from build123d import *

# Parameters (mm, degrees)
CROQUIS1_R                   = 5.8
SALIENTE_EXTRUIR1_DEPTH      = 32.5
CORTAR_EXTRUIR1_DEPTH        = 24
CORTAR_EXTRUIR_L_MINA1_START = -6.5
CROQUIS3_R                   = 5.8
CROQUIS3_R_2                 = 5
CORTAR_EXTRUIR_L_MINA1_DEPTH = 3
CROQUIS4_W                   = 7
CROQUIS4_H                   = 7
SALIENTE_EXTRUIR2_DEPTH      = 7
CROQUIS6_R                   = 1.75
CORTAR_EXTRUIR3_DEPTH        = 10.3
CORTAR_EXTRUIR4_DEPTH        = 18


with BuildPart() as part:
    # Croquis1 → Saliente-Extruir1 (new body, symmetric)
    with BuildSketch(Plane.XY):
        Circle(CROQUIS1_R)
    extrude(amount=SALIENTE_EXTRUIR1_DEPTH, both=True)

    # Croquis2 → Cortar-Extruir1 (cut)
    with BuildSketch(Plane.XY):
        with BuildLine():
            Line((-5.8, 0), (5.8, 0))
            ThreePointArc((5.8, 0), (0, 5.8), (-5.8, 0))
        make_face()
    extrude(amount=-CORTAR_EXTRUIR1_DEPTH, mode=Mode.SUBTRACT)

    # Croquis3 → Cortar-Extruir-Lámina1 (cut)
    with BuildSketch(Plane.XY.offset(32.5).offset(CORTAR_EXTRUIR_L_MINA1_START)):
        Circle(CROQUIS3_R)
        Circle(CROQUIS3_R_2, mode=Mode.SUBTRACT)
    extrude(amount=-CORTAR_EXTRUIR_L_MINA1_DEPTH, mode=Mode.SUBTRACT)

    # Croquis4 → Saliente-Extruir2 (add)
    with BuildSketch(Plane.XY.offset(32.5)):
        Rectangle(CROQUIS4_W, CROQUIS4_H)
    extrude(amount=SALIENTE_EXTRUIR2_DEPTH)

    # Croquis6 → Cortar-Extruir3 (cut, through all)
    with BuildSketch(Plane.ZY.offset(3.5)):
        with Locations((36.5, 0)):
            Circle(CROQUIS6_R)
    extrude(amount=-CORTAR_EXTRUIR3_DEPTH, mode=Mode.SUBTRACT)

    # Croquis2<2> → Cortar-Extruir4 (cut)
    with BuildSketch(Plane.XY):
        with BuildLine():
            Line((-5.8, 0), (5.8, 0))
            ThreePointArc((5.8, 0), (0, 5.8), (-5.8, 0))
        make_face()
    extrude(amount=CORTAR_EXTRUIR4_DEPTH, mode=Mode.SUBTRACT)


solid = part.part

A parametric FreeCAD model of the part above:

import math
import FreeCAD as App
import Part
import Sketcher
Q = App.Units.Quantity


def add_polygon(sketch, points):
    """Adds a closed chain of lines whose ends are joined by coincident constraints."""
    first, n = sketch.GeometryCount, len(points)
    for a, b in zip(points, points[1:] + points[:1]):
        sketch.addGeometry(Part.LineSegment(App.Vector(*a, 0), App.Vector(*b, 0)), False)
    for i in range(n):
        sketch.addConstraint(Sketcher.Constraint("Coincident", first + i, 2, first + (i + 1) % n, 1))

doc = App.newDocument("Part")
params = doc.addObject("Spreadsheet::Sheet", "Params")
for row, (alias, value) in enumerate([
    ("sketch1_diameter", "11.6 mm"),
    ("pad1_length", "65 mm"),
    ("sketch2_radius", "5.8 mm"),
    ("pocket1_length", "24 mm"),
    ("sketch3_diameter", "10 mm"),
    ("sketch3_diameter2", "11.6 mm"),
    ("pocket2_length", "3 mm"),
    ("sketch4_width", "7 mm"),
    ("pad2_length", "7 mm"),
    ("sketch5_diameter", "3.5 mm"),
    ("sketch6_radius", "5.8 mm"),
    ("pocket4_length", "18 mm"),
], start=1):
    params.set(f"A{row}", alias)
    params.set(f"B{row}", "=" + value)
    params.setAlias(f"B{row}", alias)

body = doc.addObject("PartDesign::Body", "Body")

# Sketch on XY plane
sketch1 = body.newObject("Sketcher::SketchObject", "Sketch")
sketch1.AttachmentSupport = (doc.getObject("XY_Plane"), [""])
sketch1.MapMode = "FlatFace"
sketch1.addGeometry(Part.Circle(App.Vector(0, 0, 0), App.Vector(0, 0, 1), 6), False)
sketch1.addConstraint(Sketcher.Constraint("Coincident", 0, 3, -1, 1))
sketch1.addConstraint(Sketcher.Constraint("Diameter", 0, Q("11.6 mm")))
sketch1.setExpression("Constraints[1]", "Params.sketch1_diameter")
pad1 = body.newObject("PartDesign::Pad", "Pad")
pad1.Profile = sketch1
pad1.setExpression("Length", "Params.pad1_length")
pad1.Midplane = True

# Sketch on XY plane
sketch2 = body.newObject("Sketcher::SketchObject", "Sketch001")
sketch2.AttachmentSupport = (doc.getObject("XY_Plane"), [""])
sketch2.MapMode = "FlatFace"
sketch2.addGeometry(Part.LineSegment(App.Vector(-6, 0, 0), App.Vector(6, 0, 0)), False)
sketch2.addGeometry(Part.ArcOfCircle(Part.Circle(App.Vector(0, 0, 0), App.Vector(0, 0, 1), 6), math.radians(0), math.radians(180)), False)
sketch2.addConstraint(Sketcher.Constraint("Coincident", 0, 1, 1, 2))
sketch2.addConstraint(Sketcher.Constraint("Coincident", 1, 1, 0, 2))
sketch2.addConstraint(Sketcher.Constraint("Horizontal", 0))
sketch2.addConstraint(Sketcher.Constraint("Coincident", 1, 3, -1, 1))
sketch2.addConstraint(Sketcher.Constraint("PointOnObject", 0, 1, -1))
sketch2.addConstraint(Sketcher.Constraint("Radius", 1, Q("5.8 mm")))
sketch2.setExpression("Constraints[5]", "Params.sketch2_radius")
pocket1 = body.newObject("PartDesign::Pocket", "Pocket")
pocket1.Profile = sketch2
pocket1.setExpression("Length", "Params.pocket1_length")

# Sketch on XY plane
sketch3 = body.newObject("Sketcher::SketchObject", "Sketch002")
sketch3.AttachmentSupport = (doc.getObject("XY_Plane"), [""])
sketch3.MapMode = "FlatFace"
sketch3.AttachmentOffset = App.Placement(App.Vector(0, 0, 26), App.Rotation())
sketch3.addGeometry(Part.Circle(App.Vector(0, 0, 0), App.Vector(0, 0, 1), 6), False)
sketch3.addGeometry(Part.Circle(App.Vector(0, 0, 0), App.Vector(0, 0, 1), 5), False)
sketch3.addConstraint(Sketcher.Constraint("Coincident", 0, 3, -1, 1))
sketch3.addConstraint(Sketcher.Constraint("Coincident", 1, 3, -1, 1))
sketch3.addConstraint(Sketcher.Constraint("Diameter", 1, Q("10 mm")))
sketch3.addConstraint(Sketcher.Constraint("Diameter", 0, Q("11.6 mm")))
sketch3.setExpression("Constraints[2]", "Params.sketch3_diameter")
sketch3.setExpression("Constraints[3]", "Params.sketch3_diameter2")
pocket2 = body.newObject("PartDesign::Pocket", "Pocket001")
pocket2.Profile = sketch3
pocket2.setExpression("Length", "Params.pocket2_length")

# Sketch on XY plane
sketch4 = body.newObject("Sketcher::SketchObject", "Sketch003")
sketch4.AttachmentSupport = (doc.getObject("XY_Plane"), [""])
sketch4.MapMode = "FlatFace"
sketch4.AttachmentOffset = App.Placement(App.Vector(0, 0, 32.5), App.Rotation())
add_polygon(sketch4, [(-4, 4), (-4, -4), (4, -4), (4, 4)])  # lines 0-3
sketch4.addConstraint(Sketcher.Constraint("Vertical", 0))
sketch4.addConstraint(Sketcher.Constraint("Horizontal", 1))
sketch4.addConstraint(Sketcher.Constraint("Vertical", 2))
sketch4.addConstraint(Sketcher.Constraint("Horizontal", 3))
sketch4.addConstraint(Sketcher.Constraint("Symmetric", 0, 2, 2, 2, -1, 1))
sketch4.addConstraint(Sketcher.Constraint("Equal", 3, 0))
sketch4.addConstraint(Sketcher.Constraint("DistanceX", 1, 1, 1, 2, Q("7 mm")))
sketch4.setExpression("Constraints[10]", "Params.sketch4_width")
pad2 = body.newObject("PartDesign::Pad", "Pad001")
pad2.Profile = sketch4
pad2.setExpression("Length", "Params.pad2_length")

# Sketch on YZ plane
sketch5 = body.newObject("Sketcher::SketchObject", "Sketch004")
sketch5.AttachmentSupport = (doc.getObject("YZ_Plane"), [""])
sketch5.MapMode = "FlatFace"
sketch5.AttachmentOffset = App.Placement(App.Vector(0, 0, -3.5), App.Rotation())
sketch5.addGeometry(Part.Circle(App.Vector(0, 36.5, 0), App.Vector(0, 0, 1), 1.8), False)
sketch5.addConstraint(Sketcher.Constraint("PointOnObject", 0, 3, -2))
sketch5.addConstraint(Sketcher.Constraint("Diameter", 0, Q("3.5 mm")))
sketch5.addConstraint(Sketcher.Constraint("DistanceY", -1, 1, 0, 3, Q("36.5 mm")))
sketch5.setExpression("Constraints[1]", "Params.sketch5_diameter")
pocket3 = body.newObject("PartDesign::Pocket", "Pocket002")
pocket3.Profile = sketch5
pocket3.Type = "ThroughAll"
pocket3.Reversed = True

# Sketch on XY plane
sketch6 = body.newObject("Sketcher::SketchObject", "Sketch005")
sketch6.AttachmentSupport = (doc.getObject("XY_Plane"), [""])
sketch6.MapMode = "FlatFace"
sketch6.addGeometry(Part.LineSegment(App.Vector(-6, 0, 0), App.Vector(6, 0, 0)), False)
sketch6.addGeometry(Part.ArcOfCircle(Part.Circle(App.Vector(0, 0, 0), App.Vector(0, 0, 1), 6), math.radians(0), math.radians(180)), False)
sketch6.addConstraint(Sketcher.Constraint("Coincident", 0, 1, 1, 2))
sketch6.addConstraint(Sketcher.Constraint("Coincident", 1, 1, 0, 2))
sketch6.addConstraint(Sketcher.Constraint("Horizontal", 0))
sketch6.addConstraint(Sketcher.Constraint("Coincident", 1, 3, -1, 1))
sketch6.addConstraint(Sketcher.Constraint("PointOnObject", 0, 1, -1))
sketch6.addConstraint(Sketcher.Constraint("Radius", 1, Q("5.8 mm")))
sketch6.setExpression("Constraints[5]", "Params.sketch6_radius")
pocket4 = body.newObject("PartDesign::Pocket", "Pocket003")
pocket4.Profile = sketch6
pocket4.setExpression("Length", "Params.pocket4_length")
pocket4.Reversed = True

doc.recompute()
